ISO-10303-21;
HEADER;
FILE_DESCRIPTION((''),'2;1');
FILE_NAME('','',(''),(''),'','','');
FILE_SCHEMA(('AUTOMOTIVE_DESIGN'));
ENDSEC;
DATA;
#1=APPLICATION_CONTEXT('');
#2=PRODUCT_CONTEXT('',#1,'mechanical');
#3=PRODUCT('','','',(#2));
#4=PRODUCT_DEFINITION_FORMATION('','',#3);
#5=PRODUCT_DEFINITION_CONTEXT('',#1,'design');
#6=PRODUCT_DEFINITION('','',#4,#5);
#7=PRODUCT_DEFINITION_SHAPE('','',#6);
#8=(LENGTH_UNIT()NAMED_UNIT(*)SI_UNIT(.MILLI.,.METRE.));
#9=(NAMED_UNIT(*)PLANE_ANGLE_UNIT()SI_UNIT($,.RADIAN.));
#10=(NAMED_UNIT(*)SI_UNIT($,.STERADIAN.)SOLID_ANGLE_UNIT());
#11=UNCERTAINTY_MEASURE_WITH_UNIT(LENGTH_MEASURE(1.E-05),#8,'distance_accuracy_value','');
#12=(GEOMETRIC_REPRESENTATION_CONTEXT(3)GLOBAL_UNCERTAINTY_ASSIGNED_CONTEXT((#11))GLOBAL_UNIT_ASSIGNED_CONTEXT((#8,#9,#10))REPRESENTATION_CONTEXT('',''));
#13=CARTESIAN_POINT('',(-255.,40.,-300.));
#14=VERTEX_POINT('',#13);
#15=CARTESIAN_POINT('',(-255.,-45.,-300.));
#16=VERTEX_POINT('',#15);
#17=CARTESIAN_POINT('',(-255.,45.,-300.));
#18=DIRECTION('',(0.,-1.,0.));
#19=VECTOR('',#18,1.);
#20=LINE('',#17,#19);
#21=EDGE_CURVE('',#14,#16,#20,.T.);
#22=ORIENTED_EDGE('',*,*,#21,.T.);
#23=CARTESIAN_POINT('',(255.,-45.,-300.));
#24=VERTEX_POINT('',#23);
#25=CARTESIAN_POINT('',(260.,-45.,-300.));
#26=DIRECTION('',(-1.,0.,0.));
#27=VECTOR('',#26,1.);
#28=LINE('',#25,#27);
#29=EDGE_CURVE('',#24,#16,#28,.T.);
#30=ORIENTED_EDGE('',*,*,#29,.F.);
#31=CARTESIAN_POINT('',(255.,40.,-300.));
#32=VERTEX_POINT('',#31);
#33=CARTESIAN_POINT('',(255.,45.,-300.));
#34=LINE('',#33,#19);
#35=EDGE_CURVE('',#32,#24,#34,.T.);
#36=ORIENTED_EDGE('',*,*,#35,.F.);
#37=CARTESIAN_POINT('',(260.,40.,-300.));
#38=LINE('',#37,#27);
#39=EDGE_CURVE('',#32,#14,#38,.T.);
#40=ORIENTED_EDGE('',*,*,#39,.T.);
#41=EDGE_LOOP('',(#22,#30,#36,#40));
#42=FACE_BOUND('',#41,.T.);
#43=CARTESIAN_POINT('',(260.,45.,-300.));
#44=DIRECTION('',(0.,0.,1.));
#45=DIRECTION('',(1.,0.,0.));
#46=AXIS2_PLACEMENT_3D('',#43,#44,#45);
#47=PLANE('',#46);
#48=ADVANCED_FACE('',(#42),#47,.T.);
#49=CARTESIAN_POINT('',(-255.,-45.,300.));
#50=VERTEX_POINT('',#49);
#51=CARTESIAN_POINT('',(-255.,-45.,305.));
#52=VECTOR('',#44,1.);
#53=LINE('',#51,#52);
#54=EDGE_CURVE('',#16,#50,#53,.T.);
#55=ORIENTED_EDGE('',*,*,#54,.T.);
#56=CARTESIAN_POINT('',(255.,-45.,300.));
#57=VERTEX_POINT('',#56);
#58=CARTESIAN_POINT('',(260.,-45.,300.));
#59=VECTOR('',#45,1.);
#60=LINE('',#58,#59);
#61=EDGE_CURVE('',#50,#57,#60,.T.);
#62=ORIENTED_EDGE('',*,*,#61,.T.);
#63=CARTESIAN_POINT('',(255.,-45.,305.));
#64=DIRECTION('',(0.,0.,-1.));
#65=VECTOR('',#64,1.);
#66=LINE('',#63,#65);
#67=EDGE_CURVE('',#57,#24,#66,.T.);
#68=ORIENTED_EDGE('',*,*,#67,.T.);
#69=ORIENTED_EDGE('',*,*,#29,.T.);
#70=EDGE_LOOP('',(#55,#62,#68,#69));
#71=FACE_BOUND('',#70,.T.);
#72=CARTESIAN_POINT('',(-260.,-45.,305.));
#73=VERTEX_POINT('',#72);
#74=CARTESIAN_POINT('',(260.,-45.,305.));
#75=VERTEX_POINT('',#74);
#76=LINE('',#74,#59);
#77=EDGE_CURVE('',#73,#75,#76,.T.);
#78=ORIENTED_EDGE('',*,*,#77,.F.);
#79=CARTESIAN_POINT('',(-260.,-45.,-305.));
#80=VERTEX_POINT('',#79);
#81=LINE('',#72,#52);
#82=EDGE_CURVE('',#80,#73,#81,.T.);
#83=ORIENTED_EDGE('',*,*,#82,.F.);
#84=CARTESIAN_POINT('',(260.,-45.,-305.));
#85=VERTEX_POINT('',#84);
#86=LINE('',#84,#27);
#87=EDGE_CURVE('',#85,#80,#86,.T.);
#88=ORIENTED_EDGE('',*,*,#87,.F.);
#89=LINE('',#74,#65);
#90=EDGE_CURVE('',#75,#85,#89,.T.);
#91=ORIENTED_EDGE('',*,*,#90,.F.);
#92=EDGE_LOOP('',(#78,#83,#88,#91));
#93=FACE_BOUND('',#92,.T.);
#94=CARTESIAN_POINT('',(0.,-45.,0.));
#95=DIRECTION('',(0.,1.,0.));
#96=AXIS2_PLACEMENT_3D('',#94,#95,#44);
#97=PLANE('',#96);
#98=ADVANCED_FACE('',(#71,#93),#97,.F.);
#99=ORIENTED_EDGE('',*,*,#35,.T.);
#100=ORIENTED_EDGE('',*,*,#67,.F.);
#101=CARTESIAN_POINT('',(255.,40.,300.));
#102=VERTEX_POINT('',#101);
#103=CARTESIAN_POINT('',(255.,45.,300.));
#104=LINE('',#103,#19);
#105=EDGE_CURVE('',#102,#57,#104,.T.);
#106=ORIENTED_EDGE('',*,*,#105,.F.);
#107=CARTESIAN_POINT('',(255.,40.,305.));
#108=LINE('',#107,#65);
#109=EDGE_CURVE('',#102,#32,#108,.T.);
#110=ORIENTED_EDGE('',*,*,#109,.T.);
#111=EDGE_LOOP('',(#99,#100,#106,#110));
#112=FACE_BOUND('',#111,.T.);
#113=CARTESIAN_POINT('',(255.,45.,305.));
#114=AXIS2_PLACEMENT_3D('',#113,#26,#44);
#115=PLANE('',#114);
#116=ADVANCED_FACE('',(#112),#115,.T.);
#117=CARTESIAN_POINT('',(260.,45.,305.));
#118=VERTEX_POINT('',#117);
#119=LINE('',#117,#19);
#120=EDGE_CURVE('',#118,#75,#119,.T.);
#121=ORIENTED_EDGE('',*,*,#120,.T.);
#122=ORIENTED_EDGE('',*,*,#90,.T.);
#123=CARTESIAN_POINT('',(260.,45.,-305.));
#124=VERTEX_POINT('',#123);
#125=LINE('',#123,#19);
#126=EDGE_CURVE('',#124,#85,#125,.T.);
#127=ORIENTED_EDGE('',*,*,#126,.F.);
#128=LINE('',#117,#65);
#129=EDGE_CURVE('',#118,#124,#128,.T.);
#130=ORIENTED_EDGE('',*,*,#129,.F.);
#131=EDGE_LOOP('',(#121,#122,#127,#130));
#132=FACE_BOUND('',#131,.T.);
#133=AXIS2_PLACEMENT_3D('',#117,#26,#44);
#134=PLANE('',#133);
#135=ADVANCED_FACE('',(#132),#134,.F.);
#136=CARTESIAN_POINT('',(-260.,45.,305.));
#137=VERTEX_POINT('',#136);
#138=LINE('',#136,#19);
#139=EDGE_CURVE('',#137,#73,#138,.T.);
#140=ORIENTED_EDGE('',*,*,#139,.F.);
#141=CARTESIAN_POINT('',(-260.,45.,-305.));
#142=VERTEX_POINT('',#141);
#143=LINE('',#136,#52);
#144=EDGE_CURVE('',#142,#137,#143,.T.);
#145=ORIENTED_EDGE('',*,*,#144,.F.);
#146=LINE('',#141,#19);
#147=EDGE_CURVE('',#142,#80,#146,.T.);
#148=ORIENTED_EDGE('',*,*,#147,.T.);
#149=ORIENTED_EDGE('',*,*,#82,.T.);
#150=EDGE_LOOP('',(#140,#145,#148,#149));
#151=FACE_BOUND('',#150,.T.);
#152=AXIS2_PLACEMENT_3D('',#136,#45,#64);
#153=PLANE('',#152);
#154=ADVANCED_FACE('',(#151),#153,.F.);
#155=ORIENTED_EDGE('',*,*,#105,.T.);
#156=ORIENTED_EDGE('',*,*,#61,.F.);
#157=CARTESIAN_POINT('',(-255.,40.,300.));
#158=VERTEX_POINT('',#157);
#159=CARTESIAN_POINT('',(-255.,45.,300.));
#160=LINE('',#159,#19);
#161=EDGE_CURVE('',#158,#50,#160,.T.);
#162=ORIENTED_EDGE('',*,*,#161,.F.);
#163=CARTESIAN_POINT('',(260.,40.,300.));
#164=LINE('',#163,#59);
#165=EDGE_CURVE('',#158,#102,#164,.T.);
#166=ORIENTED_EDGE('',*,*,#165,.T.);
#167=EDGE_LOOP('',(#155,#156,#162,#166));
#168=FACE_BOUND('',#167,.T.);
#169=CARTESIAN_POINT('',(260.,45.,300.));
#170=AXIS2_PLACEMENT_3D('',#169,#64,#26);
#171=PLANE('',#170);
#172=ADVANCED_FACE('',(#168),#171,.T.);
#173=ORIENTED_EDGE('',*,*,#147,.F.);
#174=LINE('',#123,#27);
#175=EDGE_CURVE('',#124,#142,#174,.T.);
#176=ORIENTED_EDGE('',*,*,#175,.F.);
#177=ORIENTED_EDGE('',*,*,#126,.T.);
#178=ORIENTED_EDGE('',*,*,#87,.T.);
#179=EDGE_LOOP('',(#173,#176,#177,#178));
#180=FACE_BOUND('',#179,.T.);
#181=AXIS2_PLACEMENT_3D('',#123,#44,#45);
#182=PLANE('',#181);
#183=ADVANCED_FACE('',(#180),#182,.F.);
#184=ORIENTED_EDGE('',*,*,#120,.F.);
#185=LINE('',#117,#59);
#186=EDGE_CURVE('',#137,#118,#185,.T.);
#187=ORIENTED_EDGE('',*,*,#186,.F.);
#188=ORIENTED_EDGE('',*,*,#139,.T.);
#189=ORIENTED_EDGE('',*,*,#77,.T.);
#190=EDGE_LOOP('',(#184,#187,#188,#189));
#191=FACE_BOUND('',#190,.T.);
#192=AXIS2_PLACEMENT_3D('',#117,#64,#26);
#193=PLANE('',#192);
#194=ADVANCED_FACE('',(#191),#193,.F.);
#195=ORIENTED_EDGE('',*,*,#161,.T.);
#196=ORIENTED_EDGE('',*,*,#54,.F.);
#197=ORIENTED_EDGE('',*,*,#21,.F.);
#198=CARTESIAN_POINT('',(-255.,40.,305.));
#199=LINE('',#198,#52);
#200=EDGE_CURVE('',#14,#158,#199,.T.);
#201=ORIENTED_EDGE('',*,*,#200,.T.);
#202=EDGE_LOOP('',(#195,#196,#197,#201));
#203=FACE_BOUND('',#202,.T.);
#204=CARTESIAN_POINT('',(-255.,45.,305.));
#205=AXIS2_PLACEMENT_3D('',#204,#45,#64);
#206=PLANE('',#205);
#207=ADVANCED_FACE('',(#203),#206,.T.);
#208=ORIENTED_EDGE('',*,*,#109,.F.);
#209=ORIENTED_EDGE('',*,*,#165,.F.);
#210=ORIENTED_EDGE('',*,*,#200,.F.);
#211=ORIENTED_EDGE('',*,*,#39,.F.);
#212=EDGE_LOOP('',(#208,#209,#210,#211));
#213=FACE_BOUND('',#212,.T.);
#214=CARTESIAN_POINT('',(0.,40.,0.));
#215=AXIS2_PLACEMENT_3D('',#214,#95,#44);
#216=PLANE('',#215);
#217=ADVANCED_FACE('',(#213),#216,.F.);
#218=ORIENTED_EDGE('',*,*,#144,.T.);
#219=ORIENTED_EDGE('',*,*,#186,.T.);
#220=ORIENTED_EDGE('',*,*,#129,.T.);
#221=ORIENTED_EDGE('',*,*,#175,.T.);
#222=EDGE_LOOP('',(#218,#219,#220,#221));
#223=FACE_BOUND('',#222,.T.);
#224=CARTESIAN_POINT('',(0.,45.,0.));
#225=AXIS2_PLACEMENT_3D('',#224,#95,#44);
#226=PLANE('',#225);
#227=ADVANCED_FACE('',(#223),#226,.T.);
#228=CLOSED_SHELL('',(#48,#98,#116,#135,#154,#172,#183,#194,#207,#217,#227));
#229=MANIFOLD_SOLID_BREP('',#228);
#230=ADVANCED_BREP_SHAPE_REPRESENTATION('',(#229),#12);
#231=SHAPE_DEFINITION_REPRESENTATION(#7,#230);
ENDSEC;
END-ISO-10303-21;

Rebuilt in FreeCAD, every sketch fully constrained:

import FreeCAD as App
import Part
import Sketcher

V = App.Vector
Q = App.Units.Quantity


def faces_at(feature, points):
    """Names of the faces that lie closest to the given points."""
    faces = feature.Shape.Faces
    near = lambda p: min(range(len(faces)), key=lambda i: faces[i].distToShape(Part.Vertex(*p))[0])
    return sorted({f"Face{near(p) + 1}" for p in points})

doc = App.newDocument("Part")
body = doc.addObject("PartDesign::Body", "Body")

# Sketch on XZ plane
sketch1 = body.newObject("Sketcher::SketchObject", "Sketch")
sketch1.AttachmentSupport = (doc.getObject("XZ_Plane"), [""])
sketch1.MapMode = "FlatFace"
sketch1.addGeometry(Part.LineSegment(V(-260, -305, 0), V(-260, 305, 0)), False)
sketch1.addGeometry(Part.LineSegment(V(-260, 305, 0), V(260, 305, 0)), False)
sketch1.addGeometry(Part.LineSegment(V(260, 305, 0), V(260, -305, 0)), False)
sketch1.addGeometry(Part.LineSegment(V(260, -305, 0), V(-260, -305, 0)), False)
sketch1.addConstraint(Sketcher.Constraint("Coincident", 0, 2, 1, 1))
sketch1.addConstraint(Sketcher.Constraint("Coincident", 1, 2, 2, 1))
sketch1.addConstraint(Sketcher.Constraint("Coincident", 2, 2, 3, 1))
sketch1.addConstraint(Sketcher.Constraint("Coincident", 3, 2, 0, 1))
sketch1.addConstraint(Sketcher.Constraint("Vertical", 0))
sketch1.addConstraint(Sketcher.Constraint("Horizontal", 1))
sketch1.addConstraint(Sketcher.Constraint("Vertical", 2))
sketch1.addConstraint(Sketcher.Constraint("Horizontal", 3))
sketch1.addConstraint(Sketcher.Constraint("Symmetric", 0, 2, 2, 2, -1, 1))
sketch1.addConstraint(Sketcher.Constraint("DistanceX", 1, 1, 1, 2, Q("520 mm")))
sketch1.addConstraint(Sketcher.Constraint("DistanceY", 0, 1, 0, 2, Q("610 mm")))
pad1 = body.newObject("PartDesign::Pad", "Pad")
pad1.Profile = sketch1
pad1.Length = 90
pad1.Midplane = True
doc.recompute()

thickness = body.newObject("PartDesign::Thickness", "Thickness")
thickness.Base = (pad1, faces_at(pad1, [(0, -45, 0)]))
thickness.Value = 5
thickness.Reversed = True
thickness.Join = "Intersection"

doc.recompute()
